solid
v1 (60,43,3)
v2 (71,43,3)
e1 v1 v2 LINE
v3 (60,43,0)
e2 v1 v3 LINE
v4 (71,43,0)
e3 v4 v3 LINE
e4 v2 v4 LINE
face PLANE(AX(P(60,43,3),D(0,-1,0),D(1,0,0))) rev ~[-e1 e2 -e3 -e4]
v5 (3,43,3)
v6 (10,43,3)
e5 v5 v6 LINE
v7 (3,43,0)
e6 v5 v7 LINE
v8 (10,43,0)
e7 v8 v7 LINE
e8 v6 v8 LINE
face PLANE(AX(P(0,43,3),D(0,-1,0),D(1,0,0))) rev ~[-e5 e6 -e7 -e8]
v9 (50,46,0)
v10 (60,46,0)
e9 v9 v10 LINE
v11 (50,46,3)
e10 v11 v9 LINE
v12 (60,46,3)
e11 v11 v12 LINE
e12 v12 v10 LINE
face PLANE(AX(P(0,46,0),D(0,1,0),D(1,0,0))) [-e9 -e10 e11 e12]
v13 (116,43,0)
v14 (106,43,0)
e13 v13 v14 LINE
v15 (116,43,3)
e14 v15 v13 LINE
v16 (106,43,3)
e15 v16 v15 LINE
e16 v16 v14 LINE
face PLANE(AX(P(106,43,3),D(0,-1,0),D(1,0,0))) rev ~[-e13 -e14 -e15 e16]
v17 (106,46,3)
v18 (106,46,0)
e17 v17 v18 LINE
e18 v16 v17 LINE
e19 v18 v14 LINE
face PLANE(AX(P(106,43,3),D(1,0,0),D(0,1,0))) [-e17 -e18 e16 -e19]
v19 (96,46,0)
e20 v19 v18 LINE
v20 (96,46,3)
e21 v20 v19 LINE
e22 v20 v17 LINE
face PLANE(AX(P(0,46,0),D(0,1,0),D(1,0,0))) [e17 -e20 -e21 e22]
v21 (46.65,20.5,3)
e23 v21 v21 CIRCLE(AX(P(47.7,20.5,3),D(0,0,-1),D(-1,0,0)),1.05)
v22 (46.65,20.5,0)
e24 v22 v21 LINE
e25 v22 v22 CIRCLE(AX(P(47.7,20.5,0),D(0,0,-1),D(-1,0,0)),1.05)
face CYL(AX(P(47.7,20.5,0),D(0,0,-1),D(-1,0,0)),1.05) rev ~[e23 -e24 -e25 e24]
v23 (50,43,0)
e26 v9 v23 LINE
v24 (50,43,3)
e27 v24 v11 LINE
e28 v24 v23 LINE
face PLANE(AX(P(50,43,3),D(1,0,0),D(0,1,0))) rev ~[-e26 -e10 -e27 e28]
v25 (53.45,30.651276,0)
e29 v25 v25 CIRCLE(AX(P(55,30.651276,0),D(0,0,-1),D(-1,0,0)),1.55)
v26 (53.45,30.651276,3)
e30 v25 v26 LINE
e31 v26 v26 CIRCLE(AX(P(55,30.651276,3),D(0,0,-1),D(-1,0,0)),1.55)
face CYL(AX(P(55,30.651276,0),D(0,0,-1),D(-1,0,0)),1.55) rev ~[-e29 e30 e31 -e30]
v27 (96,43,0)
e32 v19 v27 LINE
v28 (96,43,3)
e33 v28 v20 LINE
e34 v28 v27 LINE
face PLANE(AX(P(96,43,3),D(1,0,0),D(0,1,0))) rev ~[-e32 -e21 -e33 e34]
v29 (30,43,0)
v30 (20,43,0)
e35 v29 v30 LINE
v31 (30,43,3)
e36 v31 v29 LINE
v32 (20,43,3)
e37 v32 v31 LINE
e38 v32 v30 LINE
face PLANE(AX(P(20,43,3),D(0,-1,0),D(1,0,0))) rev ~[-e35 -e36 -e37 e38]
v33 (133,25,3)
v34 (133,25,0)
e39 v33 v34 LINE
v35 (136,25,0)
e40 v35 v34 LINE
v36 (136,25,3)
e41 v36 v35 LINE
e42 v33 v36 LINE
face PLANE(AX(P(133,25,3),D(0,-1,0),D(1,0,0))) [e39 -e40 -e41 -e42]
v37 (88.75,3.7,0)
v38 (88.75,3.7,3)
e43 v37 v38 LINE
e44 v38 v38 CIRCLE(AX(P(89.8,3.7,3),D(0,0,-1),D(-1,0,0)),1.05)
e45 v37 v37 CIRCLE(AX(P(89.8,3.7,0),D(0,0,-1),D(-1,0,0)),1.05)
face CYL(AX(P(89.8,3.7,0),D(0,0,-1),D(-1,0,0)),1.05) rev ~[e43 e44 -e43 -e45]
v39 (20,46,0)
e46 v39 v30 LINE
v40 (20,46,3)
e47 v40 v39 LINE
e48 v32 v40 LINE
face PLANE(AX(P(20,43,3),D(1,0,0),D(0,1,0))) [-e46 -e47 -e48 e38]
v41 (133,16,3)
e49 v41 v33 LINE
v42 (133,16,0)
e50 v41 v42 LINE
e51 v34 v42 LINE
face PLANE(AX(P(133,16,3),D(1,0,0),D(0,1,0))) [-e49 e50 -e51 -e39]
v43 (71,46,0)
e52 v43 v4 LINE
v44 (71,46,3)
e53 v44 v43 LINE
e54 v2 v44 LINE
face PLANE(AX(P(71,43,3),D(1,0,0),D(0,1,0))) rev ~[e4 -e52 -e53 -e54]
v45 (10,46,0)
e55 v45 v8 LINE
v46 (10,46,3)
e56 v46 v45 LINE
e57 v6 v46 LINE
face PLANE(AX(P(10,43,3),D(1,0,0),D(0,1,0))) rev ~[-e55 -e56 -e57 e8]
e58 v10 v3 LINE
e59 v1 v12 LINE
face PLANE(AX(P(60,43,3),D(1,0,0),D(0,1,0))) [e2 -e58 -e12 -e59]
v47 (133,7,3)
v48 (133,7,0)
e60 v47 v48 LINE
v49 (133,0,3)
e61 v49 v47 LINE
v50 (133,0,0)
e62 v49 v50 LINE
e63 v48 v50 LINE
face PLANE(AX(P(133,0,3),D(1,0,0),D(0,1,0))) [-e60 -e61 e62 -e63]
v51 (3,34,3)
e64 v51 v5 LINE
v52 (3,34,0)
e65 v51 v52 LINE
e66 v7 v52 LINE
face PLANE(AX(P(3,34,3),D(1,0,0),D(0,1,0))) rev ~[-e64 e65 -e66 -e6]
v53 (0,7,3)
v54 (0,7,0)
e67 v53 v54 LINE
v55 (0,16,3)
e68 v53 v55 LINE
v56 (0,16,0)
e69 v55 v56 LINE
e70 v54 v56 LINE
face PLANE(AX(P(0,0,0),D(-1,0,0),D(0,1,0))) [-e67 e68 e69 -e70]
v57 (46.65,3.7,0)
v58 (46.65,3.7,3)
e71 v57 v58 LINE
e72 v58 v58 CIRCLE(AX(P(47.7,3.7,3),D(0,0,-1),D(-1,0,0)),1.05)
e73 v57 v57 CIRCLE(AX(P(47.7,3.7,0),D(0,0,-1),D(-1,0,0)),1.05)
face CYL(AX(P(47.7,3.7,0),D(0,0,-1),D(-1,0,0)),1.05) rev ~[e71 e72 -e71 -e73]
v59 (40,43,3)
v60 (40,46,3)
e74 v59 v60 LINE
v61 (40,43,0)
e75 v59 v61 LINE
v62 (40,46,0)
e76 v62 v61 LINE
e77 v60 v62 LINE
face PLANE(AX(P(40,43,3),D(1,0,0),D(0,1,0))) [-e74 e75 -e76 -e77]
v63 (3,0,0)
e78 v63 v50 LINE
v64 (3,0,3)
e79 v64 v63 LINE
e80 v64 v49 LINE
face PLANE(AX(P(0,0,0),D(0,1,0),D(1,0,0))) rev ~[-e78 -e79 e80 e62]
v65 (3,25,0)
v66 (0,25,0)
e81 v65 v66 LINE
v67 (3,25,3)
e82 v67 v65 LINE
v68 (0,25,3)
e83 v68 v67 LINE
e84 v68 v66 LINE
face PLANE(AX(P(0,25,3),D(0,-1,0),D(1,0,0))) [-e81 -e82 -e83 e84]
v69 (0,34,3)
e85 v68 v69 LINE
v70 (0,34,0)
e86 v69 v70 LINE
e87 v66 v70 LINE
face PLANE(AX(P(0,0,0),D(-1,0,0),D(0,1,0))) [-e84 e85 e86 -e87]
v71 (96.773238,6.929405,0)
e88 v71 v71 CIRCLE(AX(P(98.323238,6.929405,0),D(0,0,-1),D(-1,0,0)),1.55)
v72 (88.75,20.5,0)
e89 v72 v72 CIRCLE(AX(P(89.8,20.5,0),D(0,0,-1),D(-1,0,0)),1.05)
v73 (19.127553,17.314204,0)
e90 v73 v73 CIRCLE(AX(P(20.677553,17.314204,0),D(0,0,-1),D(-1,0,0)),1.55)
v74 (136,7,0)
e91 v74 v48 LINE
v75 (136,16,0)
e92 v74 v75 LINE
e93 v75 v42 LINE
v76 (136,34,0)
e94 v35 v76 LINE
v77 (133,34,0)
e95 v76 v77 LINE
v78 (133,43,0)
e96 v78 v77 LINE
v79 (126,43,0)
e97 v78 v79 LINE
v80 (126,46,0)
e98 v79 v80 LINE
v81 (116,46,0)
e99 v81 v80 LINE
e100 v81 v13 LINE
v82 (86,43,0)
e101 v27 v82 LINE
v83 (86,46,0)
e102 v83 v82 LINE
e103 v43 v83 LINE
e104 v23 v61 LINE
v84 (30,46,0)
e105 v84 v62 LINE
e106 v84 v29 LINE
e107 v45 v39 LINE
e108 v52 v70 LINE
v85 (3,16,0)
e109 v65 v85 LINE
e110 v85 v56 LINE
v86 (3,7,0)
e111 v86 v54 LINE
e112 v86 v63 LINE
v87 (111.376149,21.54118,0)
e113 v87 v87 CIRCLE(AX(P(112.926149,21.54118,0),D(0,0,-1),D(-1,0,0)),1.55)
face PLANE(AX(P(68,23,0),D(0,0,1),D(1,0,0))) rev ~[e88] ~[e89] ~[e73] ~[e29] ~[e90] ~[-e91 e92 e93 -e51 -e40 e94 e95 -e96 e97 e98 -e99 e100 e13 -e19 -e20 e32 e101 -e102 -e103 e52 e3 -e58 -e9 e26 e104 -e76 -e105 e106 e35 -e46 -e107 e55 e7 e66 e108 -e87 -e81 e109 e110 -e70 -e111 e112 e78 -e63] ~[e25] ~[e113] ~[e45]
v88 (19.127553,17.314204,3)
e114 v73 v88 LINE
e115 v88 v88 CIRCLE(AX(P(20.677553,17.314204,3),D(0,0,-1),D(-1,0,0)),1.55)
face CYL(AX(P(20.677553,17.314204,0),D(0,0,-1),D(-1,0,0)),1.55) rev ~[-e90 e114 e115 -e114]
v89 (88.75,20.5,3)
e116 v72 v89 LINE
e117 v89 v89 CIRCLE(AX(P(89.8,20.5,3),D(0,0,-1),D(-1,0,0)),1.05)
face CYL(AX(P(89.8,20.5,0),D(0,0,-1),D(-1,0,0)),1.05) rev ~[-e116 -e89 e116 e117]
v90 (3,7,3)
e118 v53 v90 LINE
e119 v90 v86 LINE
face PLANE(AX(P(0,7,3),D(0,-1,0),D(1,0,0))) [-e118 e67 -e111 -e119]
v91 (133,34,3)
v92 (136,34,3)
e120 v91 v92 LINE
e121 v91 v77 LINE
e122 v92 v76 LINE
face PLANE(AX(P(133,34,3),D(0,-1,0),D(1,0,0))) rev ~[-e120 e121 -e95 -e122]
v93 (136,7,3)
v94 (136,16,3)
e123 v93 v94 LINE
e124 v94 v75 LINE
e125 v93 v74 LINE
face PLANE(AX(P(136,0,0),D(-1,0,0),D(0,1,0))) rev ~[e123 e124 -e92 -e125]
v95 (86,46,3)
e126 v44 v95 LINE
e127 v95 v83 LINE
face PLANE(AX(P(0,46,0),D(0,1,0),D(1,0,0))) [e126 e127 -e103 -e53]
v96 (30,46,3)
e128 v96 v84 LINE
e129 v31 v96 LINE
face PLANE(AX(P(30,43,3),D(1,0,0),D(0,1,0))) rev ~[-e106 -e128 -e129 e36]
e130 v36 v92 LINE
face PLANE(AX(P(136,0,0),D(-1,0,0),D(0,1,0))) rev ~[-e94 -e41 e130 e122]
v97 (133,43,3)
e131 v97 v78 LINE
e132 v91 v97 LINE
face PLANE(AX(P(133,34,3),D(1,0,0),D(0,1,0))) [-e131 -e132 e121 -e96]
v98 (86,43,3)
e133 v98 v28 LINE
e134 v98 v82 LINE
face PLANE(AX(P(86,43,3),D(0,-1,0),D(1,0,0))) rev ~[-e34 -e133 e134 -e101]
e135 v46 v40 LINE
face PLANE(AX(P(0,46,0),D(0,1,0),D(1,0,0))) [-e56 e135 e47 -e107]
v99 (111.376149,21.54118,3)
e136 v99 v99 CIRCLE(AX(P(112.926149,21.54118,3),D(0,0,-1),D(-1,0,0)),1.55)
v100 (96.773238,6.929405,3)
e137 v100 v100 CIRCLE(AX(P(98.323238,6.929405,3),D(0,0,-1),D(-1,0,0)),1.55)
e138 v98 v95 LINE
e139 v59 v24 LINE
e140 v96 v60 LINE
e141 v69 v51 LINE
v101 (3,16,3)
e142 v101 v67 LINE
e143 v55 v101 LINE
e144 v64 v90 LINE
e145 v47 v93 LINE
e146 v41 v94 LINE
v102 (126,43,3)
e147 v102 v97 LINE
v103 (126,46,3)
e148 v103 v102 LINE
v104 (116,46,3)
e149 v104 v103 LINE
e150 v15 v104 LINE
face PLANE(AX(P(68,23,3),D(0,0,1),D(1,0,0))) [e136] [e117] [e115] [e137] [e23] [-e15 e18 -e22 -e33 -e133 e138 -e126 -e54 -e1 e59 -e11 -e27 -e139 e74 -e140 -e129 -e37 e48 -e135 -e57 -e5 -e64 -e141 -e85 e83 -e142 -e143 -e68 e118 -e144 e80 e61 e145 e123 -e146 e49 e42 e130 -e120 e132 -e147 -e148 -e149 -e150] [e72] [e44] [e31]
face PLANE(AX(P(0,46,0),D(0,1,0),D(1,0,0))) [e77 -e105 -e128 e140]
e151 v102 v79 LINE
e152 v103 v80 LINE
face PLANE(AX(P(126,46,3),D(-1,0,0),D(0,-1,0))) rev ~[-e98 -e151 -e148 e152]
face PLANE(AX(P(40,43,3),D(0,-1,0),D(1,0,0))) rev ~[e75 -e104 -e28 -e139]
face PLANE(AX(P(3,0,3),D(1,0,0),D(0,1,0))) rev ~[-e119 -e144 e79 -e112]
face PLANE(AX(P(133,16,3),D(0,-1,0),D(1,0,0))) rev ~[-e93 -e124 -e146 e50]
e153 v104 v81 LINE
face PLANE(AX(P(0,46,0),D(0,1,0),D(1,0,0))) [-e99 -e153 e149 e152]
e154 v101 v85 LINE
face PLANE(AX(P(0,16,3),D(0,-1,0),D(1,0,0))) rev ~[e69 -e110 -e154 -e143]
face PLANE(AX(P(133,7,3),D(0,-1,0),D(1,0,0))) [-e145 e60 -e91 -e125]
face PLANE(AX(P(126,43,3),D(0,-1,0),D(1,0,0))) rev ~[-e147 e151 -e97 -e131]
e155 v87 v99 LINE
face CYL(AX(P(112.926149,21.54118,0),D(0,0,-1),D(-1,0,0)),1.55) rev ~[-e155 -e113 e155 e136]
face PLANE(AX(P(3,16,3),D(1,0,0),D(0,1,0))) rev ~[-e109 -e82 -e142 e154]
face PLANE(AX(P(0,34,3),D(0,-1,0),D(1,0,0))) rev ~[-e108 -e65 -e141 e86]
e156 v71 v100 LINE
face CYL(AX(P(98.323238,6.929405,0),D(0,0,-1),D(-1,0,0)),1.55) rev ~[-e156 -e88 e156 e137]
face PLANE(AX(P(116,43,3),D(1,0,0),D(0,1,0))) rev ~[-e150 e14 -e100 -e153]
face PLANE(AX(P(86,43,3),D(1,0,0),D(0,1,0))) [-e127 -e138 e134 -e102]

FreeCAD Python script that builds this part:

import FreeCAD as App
import Part
import Sketcher
from FreeCAD import Vector

doc = App.newDocument("Part")
body = doc.addObject("PartDesign::Body", "Body")

sketch1 = doc.addObject("Sketcher::SketchObject", "Sketch")
body.addObject(sketch1)
sketch1.AttachmentSupport = (doc.XY_Plane, [""])
sketch1.MapMode = "FlatFace"
sketch1.addGeometry([
    Part.LineSegment(Vector(0, 46, 0), Vector(0, 0, 0)),
    Part.LineSegment(Vector(0, 0, 0), Vector(136, 0, 0)),
    Part.LineSegment(Vector(136, 0, 0), Vector(136, 46, 0)),
    Part.LineSegment(Vector(136, 46, 0), Vector(0, 46, 0)),
], False)
sketch1.addConstraint([
    Sketcher.Constraint("Coincident", 0, 2, 1, 1),
    Sketcher.Constraint("Coincident", 1, 2, 2, 1),
    Sketcher.Constraint("Coincident", 2, 2, 3, 1),
    Sketcher.Constraint("Coincident", 3, 2, 0, 1),
    Sketcher.Constraint("Vertical", 0),
    Sketcher.Constraint("Horizontal", 1),
    Sketcher.Constraint("Vertical", 2),
    Sketcher.Constraint("Horizontal", 3),
    Sketcher.Constraint("Coincident", 0, 2, -1, 1),
    Sketcher.Constraint("DistanceX", 1, 1, 1, 2, 136.0),
    Sketcher.Constraint("DistanceY", 0, 2, 0, 1, 46.0),
])
pad1 = doc.addObject("PartDesign::Pad", "Pad")
body.addObject(pad1)
pad1.Profile = sketch1
pad1.Length = 3

sketch2 = doc.addObject("Sketcher::SketchObject", "Sketch001")
body.addObject(sketch2)
sketch2.AttachmentSupport = (doc.XY_Plane, [""])
sketch2.MapMode = "FlatFace"
sketch2.AttachmentOffset = App.Placement(Vector(0, 0, 3), App.Rotation())
sketch2.addGeometry([
    Part.LineSegment(Vector(0, 46, 0), Vector(0, 43, 0)),
    Part.LineSegment(Vector(0, 43, 0), Vector(10, 43, 0)),
    Part.LineSegment(Vector(10, 43, 0), Vector(10, 46, 0)),
    Part.LineSegment(Vector(10, 46, 0), Vector(0, 46, 0)),
], False)
sketch2.addConstraint([
    Sketcher.Constraint("Coincident", 0, 2, 1, 1),
    Sketcher.Constraint("Coincident", 1, 2, 2, 1),
    Sketcher.Constraint("Coincident", 2, 2, 3, 1),
    Sketcher.Constraint("Coincident", 3, 2, 0, 1),
    Sketcher.Constraint("Vertical", 0),
    Sketcher.Constraint("Horizontal", 1),
    Sketcher.Constraint("Vertical", 2),
    Sketcher.Constraint("Horizontal", 3),
    Sketcher.Constraint("PointOnObject", 0, 2, -2),
    Sketcher.Constraint("DistanceX", 1, 1, 1, 2, 10.0),
    Sketcher.Constraint("DistanceY", 0, 2, 0, 1, 3.0),
    Sketcher.Constraint("DistanceY", -1, 1, 0, 2, 43.0),
])
pocket1 = doc.addObject("PartDesign::Pocket", "Pocket")
body.addObject(pocket1)
pocket1.Profile = sketch2
pocket1.Type = "UpToFirst"

sketch3 = doc.addObject("Sketcher::SketchObject", "Sketch002")
body.addObject(sketch3)
sketch3.AttachmentSupport = (doc.XY_Plane, [""])
sketch3.MapMode = "FlatFace"
sketch3.AttachmentOffset = App.Placement(Vector(0, 0, 3), App.Rotation())
sketch3.addGeometry([
    Part.LineSegment(Vector(0, 43, 0), Vector(0, 34, 0)),
    Part.LineSegment(Vector(0, 34, 0), Vector(3, 34, 0)),
    Part.LineSegment(Vector(3, 34, 0), Vector(3, 43, 0)),
    Part.LineSegment(Vector(3, 43, 0), Vector(0, 43, 0)),
], False)
sketch3.addConstraint([
    Sketcher.Constraint("Coincident", 0, 2, 1, 1),
    Sketcher.Constraint("Coincident", 1, 2, 2, 1),
    Sketcher.Constraint("Coincident", 2, 2, 3, 1),
    Sketcher.Constraint("Coincident", 3, 2, 0, 1),
    Sketcher.Constraint("Vertical", 0),
    Sketcher.Constraint("Horizontal", 1),
    Sketcher.Constraint("Vertical", 2),
    Sketcher.Constraint("Horizontal", 3),
    Sketcher.Constraint("PointOnObject", 0, 2, -2),
    Sketcher.Constraint("DistanceX", 1, 1, 1, 2, 3.0),
    Sketcher.Constraint("DistanceY", 0, 2, 0, 1, 9.0),
    Sketcher.Constraint("DistanceY", -1, 1, 0, 2, 34.0),
])
pocket2 = doc.addObject("PartDesign::Pocket", "Pocket001")
body.addObject(pocket2)
pocket2.Profile = sketch3
pocket2.Type = "UpToFirst"

sketch4 = doc.addObject("Sketcher::SketchObject", "Sketch003")
body.addObject(sketch4)
sketch4.AttachmentSupport = (doc.XY_Plane, [""])
sketch4.MapMode = "FlatFace"
sketch4.AttachmentOffset = App.Placement(Vector(0, 0, 3), App.Rotation())
sketch4.addGeometry([
    Part.LineSegment(Vector(0, 25, 0), Vector(0, 16, 0)),
    Part.LineSegment(Vector(0, 16, 0), Vector(3, 16, 0)),
    Part.LineSegment(Vector(3, 16, 0), Vector(3, 25, 0)),
    Part.LineSegment(Vector(3, 25, 0), Vector(0, 25, 0)),
], False)
sketch4.addConstraint([
    Sketcher.Constraint("Coincident", 0, 2, 1, 1),
    Sketcher.Constraint("Coincident", 1, 2, 2, 1),
    Sketcher.Constraint("Coincident", 2, 2, 3, 1),
    Sketcher.Constraint("Coincident", 3, 2, 0, 1),
    Sketcher.Constraint("Vertical", 0),
    Sketcher.Constraint("Horizontal", 1),
    Sketcher.Constraint("Vertical", 2),
    Sketcher.Constraint("Horizontal", 3),
    Sketcher.Constraint("PointOnObject", 0, 2, -2),
    Sketcher.Constraint("DistanceX", 1, 1, 1, 2, 3.0),
    Sketcher.Constraint("DistanceY", 0, 2, 0, 1, 9.0),
    Sketcher.Constraint("DistanceY", -1, 1, 0, 2, 16.0),
])
pocket3 = doc.addObject("PartDesign::Pocket", "Pocket002")
body.addObject(pocket3)
pocket3.Profile = sketch4
pocket3.Type = "UpToFirst"

sketch5 = doc.addObject("Sketcher::SketchObject", "Sketch004")
body.addObject(sketch5)
sketch5.AttachmentSupport = (doc.XY_Plane, [""])
sketch5.MapMode = "FlatFace"
sketch5.AttachmentOffset = App.Placement(Vector(0, 0, 3), App.Rotation())
sketch5.addGeometry([
    Part.LineSegment(Vector(0, 7, 0), Vector(0, 0, 0)),
    Part.LineSegment(Vector(0, 0, 0), Vector(3, 0, 0)),
    Part.LineSegment(Vector(3, 0, 0), Vector(3, 7, 0)),
    Part.LineSegment(Vector(3, 7, 0), Vector(0, 7, 0)),
], False)
sketch5.addConstraint([
    Sketcher.Constraint("Coincident", 0, 2, 1, 1),
    Sketcher.Constraint("Coincident", 1, 2, 2, 1),
    Sketcher.Constraint("Coincident", 2, 2, 3, 1),
    Sketcher.Constraint("Coincident", 3, 2, 0, 1),
    Sketcher.Constraint("Vertical", 0),
    Sketcher.Constraint("Horizontal", 1),
    Sketcher.Constraint("Vertical", 2),
    Sketcher.Constraint("Horizontal", 3),
    Sketcher.Constraint("Coincident", 0, 2, -1, 1),
    Sketcher.Constraint("DistanceX", 1, 1, 1, 2, 3.0),
    Sketcher.Constraint("DistanceY", 0, 2, 0, 1, 7.0),
])
pocket4 = doc.addObject("PartDesign::Pocket", "Pocket003")
body.addObject(pocket4)
pocket4.Profile = sketch5
pocket4.Type = "UpToFirst"

sketch6 = doc.addObject("Sketcher::SketchObject", "Sketch005")
body.addObject(sketch6)
sketch6.AttachmentSupport = (doc.XY_Plane, [""])
sketch6.MapMode = "FlatFace"
sketch6.AttachmentOffset = App.Placement(Vector(0, 0, 3), App.Rotation())
sketch6.addGeometry([
    Part.LineSegment(Vector(20, 46, 0), Vector(20, 43, 0)),
    Part.LineSegment(Vector(20, 43, 0), Vector(30, 43, 0)),
    Part.LineSegment(Vector(30, 43, 0), Vector(30, 46, 0)),
    Part.LineSegment(Vector(30, 46, 0), Vector(20, 46, 0)),
], False)
sketch6.addConstraint([
    Sketcher.Constraint("Coincident", 0, 2, 1, 1),
    Sketcher.Constraint("Coincident", 1, 2, 2, 1),
    Sketcher.Constraint("Coincident", 2, 2, 3, 1),
    Sketcher.Constraint("Coincident", 3, 2, 0, 1),
    Sketcher.Constraint("Vertical", 0),
    Sketcher.Constraint("Horizontal", 1),
    Sketcher.Constraint("Vertical", 2),
    Sketcher.Constraint("Horizontal", 3),
    Sketcher.Constraint("DistanceX", 1, 1, 1, 2, 10.0),
    Sketcher.Constraint("DistanceY", 0, 2, 0, 1, 3.0),
    Sketcher.Constraint("DistanceX", -1, 1, 0, 2, 20.0),
    Sketcher.Constraint("DistanceY", -1, 1, 0, 2, 43.0),
])
pocket5 = doc.addObject("PartDesign::Pocket", "Pocket004")
body.addObject(pocket5)
pocket5.Profile = sketch6
pocket5.Type = "UpToFirst"

sketch7 = doc.addObject("Sketcher::SketchObject", "Sketch006")
body.addObject(sketch7)
sketch7.AttachmentSupport = (doc.XY_Plane, [""])
sketch7.MapMode = "FlatFace"
sketch7.AttachmentOffset = App.Placement(Vector(0, 0, 3), App.Rotation())
sketch7.addGeometry([
    Part.LineSegment(Vector(40, 46, 0), Vector(40, 43, 0)),
    Part.LineSegment(Vector(40, 43, 0), Vector(50, 43, 0)),
    Part.LineSegment(Vector(50, 43, 0), Vector(50, 46, 0)),
    Part.LineSegment(Vector(50, 46, 0), Vector(40, 46, 0)),
], False)
sketch7.addConstraint([
    Sketcher.Constraint("Coincident", 0, 2, 1, 1),
    Sketcher.Constraint("Coincident", 1, 2, 2, 1),
    Sketcher.Constraint("Coincident", 2, 2, 3, 1),
    Sketcher.Constraint("Coincident", 3, 2, 0, 1),
    Sketcher.Constraint("Vertical", 0),
    Sketcher.Constraint("Horizontal", 1),
    Sketcher.Constraint("Vertical", 2),
    Sketcher.Constraint("Horizontal", 3),
    Sketcher.Constraint("DistanceX", 1, 1, 1, 2, 10.0),
    Sketcher.Constraint("DistanceY", 0, 2, 0, 1, 3.0),
    Sketcher.Constraint("DistanceX", -1, 1, 0, 2, 40.0),
    Sketcher.Constraint("DistanceY", -1, 1, 0, 2, 43.0),
])
pocket6 = doc.addObject("PartDesign::Pocket", "Pocket005")
body.addObject(pocket6)
pocket6.Profile = sketch7
pocket6.Type = "UpToFirst"

sketch8 = doc.addObject("Sketcher::SketchObject", "Sketch007")
body.addObject(sketch8)
sketch8.AttachmentSupport = (doc.XY_Plane, [""])
sketch8.MapMode = "FlatFace"
sketch8.AttachmentOffset = App.Placement(Vector(0, 0, 3), App.Rotation())
sketch8.addGeometry([
    Part.LineSegment(Vector(60, 46, 0), Vector(60, 43, 0)),
    Part.LineSegment(Vector(60, 43, 0), Vector(71, 43, 0)),
    Part.LineSegment(Vector(71, 43, 0), Vector(71, 46, 0)),
    Part.LineSegment(Vector(71, 46, 0), Vector(60, 46, 0)),
], False)
sketch8.addConstraint([
    Sketcher.Constraint("Coincident", 0, 2, 1, 1),
    Sketcher.Constraint("Coincident", 1, 2, 2, 1),
    Sketcher.Constraint("Coincident", 2, 2, 3, 1),
    Sketcher.Constraint("Coincident", 3, 2, 0, 1),
    Sketcher.Constraint("Vertical", 0),
    Sketcher.Constraint("Horizontal", 1),
    Sketcher.Constraint("Vertical", 2),
    Sketcher.Constraint("Horizontal", 3),
    Sketcher.Constraint("DistanceX", 1, 1, 1, 2, 11.0),
    Sketcher.Constraint("DistanceY", 0, 2, 0, 1, 3.0),
    Sketcher.Constraint("DistanceX", -1, 1, 0, 2, 60.0),
    Sketcher.Constraint("DistanceY", -1, 1, 0, 2, 43.0),
])
pocket7 = doc.addObject("PartDesign::Pocket", "Pocket006")
body.addObject(pocket7)
pocket7.Profile = sketch8
pocket7.Type = "UpToFirst"

sketch9 = doc.addObject("Sketcher::SketchObject", "Sketch008")
body.addObject(sketch9)
sketch9.AttachmentSupport = (doc.XY_Plane, [""])
sketch9.MapMode = "FlatFace"
sketch9.AttachmentOffset = App.Placement(Vector(0, 0, 3), App.Rotation())
sketch9.addGeometry([
    Part.LineSegment(Vector(86, 46, 0), Vector(86, 43, 0)),
    Part.LineSegment(Vector(86, 43, 0), Vector(96, 43, 0)),
    Part.LineSegment(Vector(96, 43, 0), Vector(96, 46, 0)),
    Part.LineSegment(Vector(96, 46, 0), Vector(86, 46, 0)),
], False)
sketch9.addConstraint([
    Sketcher.Constraint("Coincident", 0, 2, 1, 1),
    Sketcher.Constraint("Coincident", 1, 2, 2, 1),
    Sketcher.Constraint("Coincident", 2, 2, 3, 1),
    Sketcher.Constraint("Coincident", 3, 2, 0, 1),
    Sketcher.Constraint("Vertical", 0),
    Sketcher.Constraint("Horizontal", 1),
    Sketcher.Constraint("Vertical", 2),
    Sketcher.Constraint("Horizontal", 3),
    Sketcher.Constraint("DistanceX", 1, 1, 1, 2, 10.0),
    Sketcher.Constraint("DistanceY", 0, 2, 0, 1, 3.0),
    Sketcher.Constraint("DistanceX", -1, 1, 0, 2, 86.0),
    Sketcher.Constraint("DistanceY", -1, 1, 0, 2, 43.0),
])
pocket8 = doc.addObject("PartDesign::Pocket", "Pocket007")
body.addObject(pocket8)
pocket8.Profile = sketch9
pocket8.Type = "UpToFirst"

sketch10 = doc.addObject("Sketcher::SketchObject", "Sketch009")
body.addObject(sketch10)
sketch10.AttachmentSupport = (doc.XY_Plane, [""])
sketch10.MapMode = "FlatFace"
sketch10.AttachmentOffset = App.Placement(Vector(0, 0, 3), App.Rotation())
sketch10.addGeometry([
    Part.LineSegment(Vector(106, 46, 0), Vector(106, 43, 0)),
    Part.LineSegment(Vector(106, 43, 0), Vector(116, 43, 0)),
    Part.LineSegment(Vector(116, 43, 0), Vector(116, 46, 0)),
    Part.LineSegment(Vector(116, 46, 0), Vector(106, 46, 0)),
], False)
sketch10.addConstraint([
    Sketcher.Constraint("Coincident", 0, 2, 1, 1),
    Sketcher.Constraint("Coincident", 1, 2, 2, 1),
    Sketcher.Constraint("Coincident", 2, 2, 3, 1),
    Sketcher.Constraint("Coincident", 3, 2, 0, 1),
    Sketcher.Constraint("Vertical", 0),
    Sketcher.Constraint("Horizontal", 1),
    Sketcher.Constraint("Vertical", 2),
    Sketcher.Constraint("Horizontal", 3),
    Sketcher.Constraint("DistanceX", 1, 1, 1, 2, 10.0),
    Sketcher.Constraint("DistanceY", 0, 2, 0, 1, 3.0),
    Sketcher.Constraint("DistanceX", -1, 1, 0, 2, 106.0),
    Sketcher.Constraint("DistanceY", -1, 1, 0, 2, 43.0),
])
pocket9 = doc.addObject("PartDesign::Pocket", "Pocket008")
body.addObject(pocket9)
pocket9.Profile = sketch10
pocket9.Type = "UpToFirst"

sketch11 = doc.addObject("Sketcher::SketchObject", "Sketch010")
body.addObject(sketch11)
sketch11.AttachmentSupport = (doc.XY_Plane, [""])
sketch11.MapMode = "FlatFace"
sketch11.AttachmentOffset = App.Placement(Vector(0, 0, 3), App.Rotation())
sketch11.addGeometry([
    Part.LineSegment(Vector(136, 43, 0), Vector(136, 46, 0)),
    Part.LineSegment(Vector(136, 46, 0), Vector(126, 46, 0)),
    Part.LineSegment(Vector(126, 46, 0), Vector(126, 43, 0)),
    Part.LineSegment(Vector(126, 43, 0), Vector(136, 43, 0)),
], False)
sketch11.addConstraint([
    Sketcher.Constraint("Coincident", 0, 2, 1, 1),
    Sketcher.Constraint("Coincident", 1, 2, 2, 1),
    Sketcher.Constraint("Coincident", 2, 2, 3, 1),
    Sketcher.Constraint("Coincident", 3, 2, 0, 1),
    Sketcher.Constraint("Vertical", 0),
    Sketcher.Constraint("Horizontal", 1),
    Sketcher.Constraint("Vertical", 2),
    Sketcher.Constraint("Horizontal", 3),
    Sketcher.Constraint("DistanceX", 1, 2, 1, 1, 10.0),
    Sketcher.Constraint("DistanceY", 0, 1, 0, 2, 3.0),
    Sketcher.Constraint("DistanceX", -1, 1, 0, 2, 136.0),
    Sketcher.Constraint("DistanceY", -1, 1, 0, 2, 46.0),
])
pocket10 = doc.addObject("PartDesign::Pocket", "Pocket009")
body.addObject(pocket10)
pocket10.Profile = sketch11
pocket10.Type = "UpToFirst"

sketch12 = doc.addObject("Sketcher::SketchObject", "Sketch011")
body.addObject(sketch12)
sketch12.AttachmentSupport = (doc.XY_Plane, [""])
sketch12.MapMode = "FlatFace"
sketch12.AttachmentOffset = App.Placement(Vector(0, 0, 3), App.Rotation())
sketch12.addGeometry([
    Part.LineSegment(Vector(133, 43, 0), Vector(133, 34, 0)),
    Part.LineSegment(Vector(133, 34, 0), Vector(136, 34, 0)),
    Part.LineSegment(Vector(136, 34, 0), Vector(136, 43, 0)),
    Part.LineSegment(Vector(136, 43, 0), Vector(133, 43, 0)),
], False)
sketch12.addConstraint([
    Sketcher.Constraint("Coincident", 0, 2, 1, 1),
    Sketcher.Constraint("Coincident", 1, 2, 2, 1),
    Sketcher.Constraint("Coincident", 2, 2, 3, 1),
    Sketcher.Constraint("Coincident", 3, 2, 0, 1),
    Sketcher.Constraint("Vertical", 0),
    Sketcher.Constraint("Horizontal", 1),
    Sketcher.Constraint("Vertical", 2),
    Sketcher.Constraint("Horizontal", 3),
    Sketcher.Constraint("DistanceX", 1, 1, 1, 2, 3.0),
    Sketcher.Constraint("DistanceY", 0, 2, 0, 1, 9.0),
    Sketcher.Constraint("DistanceX", -1, 1, 0, 2, 133.0),
    Sketcher.Constraint("DistanceY", -1, 1, 0, 2, 34.0),
])
pocket11 = doc.addObject("PartDesign::Pocket", "Pocket010")
body.addObject(pocket11)
pocket11.Profile = sketch12
pocket11.Type = "UpToFirst"

sketch13 = doc.addObject("Sketcher::SketchObject", "Sketch012")
body.addObject(sketch13)
sketch13.AttachmentSupport = (doc.XY_Plane, [""])
sketch13.MapMode = "FlatFace"
sketch13.AttachmentOffset = App.Placement(Vector(0, 0, 3), App.Rotation())
sketch13.addGeometry([
    Part.LineSegment(Vector(133, 25, 0), Vector(133, 16, 0)),
    Part.LineSegment(Vector(133, 16, 0), Vector(136, 16, 0)),
    Part.LineSegment(Vector(136, 16, 0), Vector(136, 25, 0)),
    Part.LineSegment(Vector(136, 25, 0), Vector(133, 25, 0)),
], False)
sketch13.addConstraint([
    Sketcher.Constraint("Coincident", 0, 2, 1, 1),
    Sketcher.Constraint("Coincident", 1, 2, 2, 1),
    Sketcher.Constraint("Coincident", 2, 2, 3, 1),
    Sketcher.Constraint("Coincident", 3, 2, 0, 1),
    Sketcher.Constraint("Vertical", 0),
    Sketcher.Constraint("Horizontal", 1),
    Sketcher.Constraint("Vertical", 2),
    Sketcher.Constraint("Horizontal", 3),
    Sketcher.Constraint("DistanceX", 1, 1, 1, 2, 3.0),
    Sketcher.Constraint("DistanceY", 0, 2, 0, 1, 9.0),
    Sketcher.Constraint("DistanceX", -1, 1, 0, 2, 133.0),
    Sketcher.Constraint("DistanceY", -1, 1, 0, 2, 16.0),
])
pocket12 = doc.addObject("PartDesign::Pocket", "Pocket011")
body.addObject(pocket12)
pocket12.Profile = sketch13
pocket12.Type = "UpToFirst"

sketch14 = doc.addObject("Sketcher::SketchObject", "Sketch013")
body.addObject(sketch14)
sketch14.AttachmentSupport = (doc.XY_Plane, [""])
sketch14.MapMode = "FlatFace"
sketch14.AttachmentOffset = App.Placement(Vector(0, 0, 3), App.Rotation())
sketch14.addGeometry([
    Part.LineSegment(Vector(133, 7, 0), Vector(133, 0, 0)),
    Part.LineSegment(Vector(133, 0, 0), Vector(136, 0, 0)),
    Part.LineSegment(Vector(136, 0, 0), Vector(136, 7, 0)),
    Part.LineSegment(Vector(136, 7, 0), Vector(133, 7, 0)),
], False)
sketch14.addConstraint([
    Sketcher.Constraint("Coincident", 0, 2, 1, 1),
    Sketcher.Constraint("Coincident", 1, 2, 2, 1),
    Sketcher.Constraint("Coincident", 2, 2, 3, 1),
    Sketcher.Constraint("Coincident", 3, 2, 0, 1),
    Sketcher.Constraint("Vertical", 0),
    Sketcher.Constraint("Horizontal", 1),
    Sketcher.Constraint("Vertical", 2),
    Sketcher.Constraint("Horizontal", 3),
    Sketcher.Constraint("PointOnObject", 0, 2, -1),
    Sketcher.Constraint("DistanceX", 1, 1, 1, 2, 3.0),
    Sketcher.Constraint("DistanceY", 0, 2, 0, 1, 7.0),
    Sketcher.Constraint("DistanceX", -1, 1, 0, 2, 133.0),
])
pocket13 = doc.addObject("PartDesign::Pocket", "Pocket012")
body.addObject(pocket13)
pocket13.Profile = sketch14
pocket13.Type = "UpToFirst"

sketch15 = doc.addObject("Sketcher::SketchObject", "Sketch014")
body.addObject(sketch15)
sketch15.AttachmentSupport = (doc.XY_Plane, [""])
sketch15.MapMode = "FlatFace"
sketch15.addGeometry(Part.Circle(Vector(89.8, 20.5, 0), Vector(0, 0, 1), 1.05), False)
sketch15.addConstraint([
    Sketcher.Constraint("Diameter", 0, 2.1),
    Sketcher.Constraint("DistanceX", -1, 1, 0, 3, 89.8),
    Sketcher.Constraint("DistanceY", -1, 1, 0, 3, 20.5),
])
pocket14 = doc.addObject("PartDesign::Pocket", "Pocket013")
body.addObject(pocket14)
pocket14.Profile = sketch15
pocket14.Type = "UpToFirst"
pocket14.Reversed = True

sketch16 = doc.addObject("Sketcher::SketchObject", "Sketch015")
body.addObject(sketch16)
sketch16.AttachmentSupport = (doc.XY_Plane, [""])
sketch16.MapMode = "FlatFace"
sketch16.addGeometry(Part.Circle(Vector(89.8, 3.7, 0), Vector(0, 0, 1), 1.05), False)
sketch16.addConstraint([
    Sketcher.Constraint("Diameter", 0, 2.1),
    Sketcher.Constraint("DistanceX", -1, 1, 0, 3, 89.8),
    Sketcher.Constraint("DistanceY", -1, 1, 0, 3, 3.7),
])
pocket15 = doc.addObject("PartDesign::Pocket", "Pocket014")
body.addObject(pocket15)
pocket15.Profile = sketch16
pocket15.Type = "UpToFirst"
pocket15.Reversed = True

sketch17 = doc.addObject("Sketcher::SketchObject", "Sketch016")
body.addObject(sketch17)
sketch17.AttachmentSupport = (doc.XY_Plane, [""])
sketch17.MapMode = "FlatFace"
sketch17.addGeometry(Part.Circle(Vector(47.7, 20.5, 0), Vector(0, 0, 1), 1.05), False)
sketch17.addConstraint([
    Sketcher.Constraint("Diameter", 0, 2.1),
    Sketcher.Constraint("DistanceX", -1, 1, 0, 3, 47.7),
    Sketcher.Constraint("DistanceY", -1, 1, 0, 3, 20.5),
])
pocket16 = doc.addObject("PartDesign::Pocket", "Pocket015")
body.addObject(pocket16)
pocket16.Profile = sketch17
pocket16.Type = "UpToFirst"
pocket16.Reversed = True

sketch18 = doc.addObject("Sketcher::SketchObject", "Sketch017")
body.addObject(sketch18)
sketch18.AttachmentSupport = (doc.XY_Plane, [""])
sketch18.MapMode = "FlatFace"
sketch18.addGeometry(Part.Circle(Vector(47.7, 3.7, 0), Vector(0, 0, 1), 1.05), False)
sketch18.addConstraint([
    Sketcher.Constraint("Diameter", 0, 2.1),
    Sketcher.Constraint("DistanceX", -1, 1, 0, 3, 47.7),
    Sketcher.Constraint("DistanceY", -1, 1, 0, 3, 3.7),
])
pocket17 = doc.addObject("PartDesign::Pocket", "Pocket016")
body.addObject(pocket17)
pocket17.Profile = sketch18
pocket17.Type = "UpToFirst"
pocket17.Reversed = True

sketch19 = doc.addObject("Sketcher::SketchObject", "Sketch018")
body.addObject(sketch19)
sketch19.AttachmentSupport = (doc.XY_Plane, [""])
sketch19.MapMode = "FlatFace"
sketch19.addGeometry(Part.Circle(Vector(20.677553, 17.314204, 0), Vector(0, 0, 1), 1.55), False)
sketch19.addConstraint([
    Sketcher.Constraint("Diameter", 0, 3.1),
    Sketcher.Constraint("DistanceX", -1, 1, 0, 3, 20.677553),
    Sketcher.Constraint("DistanceY", -1, 1, 0, 3, 17.314204),
])
pocket18 = doc.addObject("PartDesign::Pocket", "Pocket017")
body.addObject(pocket18)
pocket18.Profile = sketch19
pocket18.Type = "UpToFirst"
pocket18.Reversed = True

sketch20 = doc.addObject("Sketcher::SketchObject", "Sketch019")
body.addObject(sketch20)
sketch20.AttachmentSupport = (doc.XY_Plane, [""])
sketch20.MapMode = "FlatFace"
sketch20.addGeometry(Part.Circle(Vector(55, 30.651276, 0), Vector(0, 0, 1), 1.55), False)
sketch20.addConstraint([
    Sketcher.Constraint("Diameter", 0, 3.1),
    Sketcher.Constraint("DistanceX", -1, 1, 0, 3, 55.0),
    Sketcher.Constraint("DistanceY", -1, 1, 0, 3, 30.651276),
])
pocket19 = doc.addObject("PartDesign::Pocket", "Pocket018")
body.addObject(pocket19)
pocket19.Profile = sketch20
pocket19.Type = "UpToFirst"
pocket19.Reversed = True

sketch21 = doc.addObject("Sketcher::SketchObject", "Sketch020")
body.addObject(sketch21)
sketch21.AttachmentSupport = (doc.XY_Plane, [""])
sketch21.MapMode = "FlatFace"
sketch21.addGeometry(Part.Circle(Vector(112.926149, 21.54118, 0), Vector(0, 0, 1), 1.55), False)
sketch21.addConstraint([
    Sketcher.Constraint("Diameter", 0, 3.1),
    Sketcher.Constraint("DistanceX", -1, 1, 0, 3, 112.926149),
    Sketcher.Constraint("DistanceY", -1, 1, 0, 3, 21.54118),
])
pocket20 = doc.addObject("PartDesign::Pocket", "Pocket019")
body.addObject(pocket20)
pocket20.Profile = sketch21
pocket20.Type = "UpToFirst"
pocket20.Reversed = True

sketch22 = doc.addObject("Sketcher::SketchObject", "Sketch021")
body.addObject(sketch22)
sketch22.AttachmentSupport = (doc.XY_Plane, [""])
sketch22.MapMode = "FlatFace"
sketch22.addGeometry(Part.Circle(Vector(98.323238, 6.929405, 0), Vector(0, 0, 1), 1.55), False)
sketch22.addConstraint([
    Sketcher.Constraint("Diameter", 0, 3.1),
    Sketcher.Constraint("DistanceX", -1, 1, 0, 3, 98.323238),
    Sketcher.Constraint("DistanceY", -1, 1, 0, 3, 6.929405),
])
pocket21 = doc.addObject("PartDesign::Pocket", "Pocket020")
body.addObject(pocket21)
pocket21.Profile = sketch22
pocket21.Type = "UpToFirst"
pocket21.Reversed = True

doc.recompute()
